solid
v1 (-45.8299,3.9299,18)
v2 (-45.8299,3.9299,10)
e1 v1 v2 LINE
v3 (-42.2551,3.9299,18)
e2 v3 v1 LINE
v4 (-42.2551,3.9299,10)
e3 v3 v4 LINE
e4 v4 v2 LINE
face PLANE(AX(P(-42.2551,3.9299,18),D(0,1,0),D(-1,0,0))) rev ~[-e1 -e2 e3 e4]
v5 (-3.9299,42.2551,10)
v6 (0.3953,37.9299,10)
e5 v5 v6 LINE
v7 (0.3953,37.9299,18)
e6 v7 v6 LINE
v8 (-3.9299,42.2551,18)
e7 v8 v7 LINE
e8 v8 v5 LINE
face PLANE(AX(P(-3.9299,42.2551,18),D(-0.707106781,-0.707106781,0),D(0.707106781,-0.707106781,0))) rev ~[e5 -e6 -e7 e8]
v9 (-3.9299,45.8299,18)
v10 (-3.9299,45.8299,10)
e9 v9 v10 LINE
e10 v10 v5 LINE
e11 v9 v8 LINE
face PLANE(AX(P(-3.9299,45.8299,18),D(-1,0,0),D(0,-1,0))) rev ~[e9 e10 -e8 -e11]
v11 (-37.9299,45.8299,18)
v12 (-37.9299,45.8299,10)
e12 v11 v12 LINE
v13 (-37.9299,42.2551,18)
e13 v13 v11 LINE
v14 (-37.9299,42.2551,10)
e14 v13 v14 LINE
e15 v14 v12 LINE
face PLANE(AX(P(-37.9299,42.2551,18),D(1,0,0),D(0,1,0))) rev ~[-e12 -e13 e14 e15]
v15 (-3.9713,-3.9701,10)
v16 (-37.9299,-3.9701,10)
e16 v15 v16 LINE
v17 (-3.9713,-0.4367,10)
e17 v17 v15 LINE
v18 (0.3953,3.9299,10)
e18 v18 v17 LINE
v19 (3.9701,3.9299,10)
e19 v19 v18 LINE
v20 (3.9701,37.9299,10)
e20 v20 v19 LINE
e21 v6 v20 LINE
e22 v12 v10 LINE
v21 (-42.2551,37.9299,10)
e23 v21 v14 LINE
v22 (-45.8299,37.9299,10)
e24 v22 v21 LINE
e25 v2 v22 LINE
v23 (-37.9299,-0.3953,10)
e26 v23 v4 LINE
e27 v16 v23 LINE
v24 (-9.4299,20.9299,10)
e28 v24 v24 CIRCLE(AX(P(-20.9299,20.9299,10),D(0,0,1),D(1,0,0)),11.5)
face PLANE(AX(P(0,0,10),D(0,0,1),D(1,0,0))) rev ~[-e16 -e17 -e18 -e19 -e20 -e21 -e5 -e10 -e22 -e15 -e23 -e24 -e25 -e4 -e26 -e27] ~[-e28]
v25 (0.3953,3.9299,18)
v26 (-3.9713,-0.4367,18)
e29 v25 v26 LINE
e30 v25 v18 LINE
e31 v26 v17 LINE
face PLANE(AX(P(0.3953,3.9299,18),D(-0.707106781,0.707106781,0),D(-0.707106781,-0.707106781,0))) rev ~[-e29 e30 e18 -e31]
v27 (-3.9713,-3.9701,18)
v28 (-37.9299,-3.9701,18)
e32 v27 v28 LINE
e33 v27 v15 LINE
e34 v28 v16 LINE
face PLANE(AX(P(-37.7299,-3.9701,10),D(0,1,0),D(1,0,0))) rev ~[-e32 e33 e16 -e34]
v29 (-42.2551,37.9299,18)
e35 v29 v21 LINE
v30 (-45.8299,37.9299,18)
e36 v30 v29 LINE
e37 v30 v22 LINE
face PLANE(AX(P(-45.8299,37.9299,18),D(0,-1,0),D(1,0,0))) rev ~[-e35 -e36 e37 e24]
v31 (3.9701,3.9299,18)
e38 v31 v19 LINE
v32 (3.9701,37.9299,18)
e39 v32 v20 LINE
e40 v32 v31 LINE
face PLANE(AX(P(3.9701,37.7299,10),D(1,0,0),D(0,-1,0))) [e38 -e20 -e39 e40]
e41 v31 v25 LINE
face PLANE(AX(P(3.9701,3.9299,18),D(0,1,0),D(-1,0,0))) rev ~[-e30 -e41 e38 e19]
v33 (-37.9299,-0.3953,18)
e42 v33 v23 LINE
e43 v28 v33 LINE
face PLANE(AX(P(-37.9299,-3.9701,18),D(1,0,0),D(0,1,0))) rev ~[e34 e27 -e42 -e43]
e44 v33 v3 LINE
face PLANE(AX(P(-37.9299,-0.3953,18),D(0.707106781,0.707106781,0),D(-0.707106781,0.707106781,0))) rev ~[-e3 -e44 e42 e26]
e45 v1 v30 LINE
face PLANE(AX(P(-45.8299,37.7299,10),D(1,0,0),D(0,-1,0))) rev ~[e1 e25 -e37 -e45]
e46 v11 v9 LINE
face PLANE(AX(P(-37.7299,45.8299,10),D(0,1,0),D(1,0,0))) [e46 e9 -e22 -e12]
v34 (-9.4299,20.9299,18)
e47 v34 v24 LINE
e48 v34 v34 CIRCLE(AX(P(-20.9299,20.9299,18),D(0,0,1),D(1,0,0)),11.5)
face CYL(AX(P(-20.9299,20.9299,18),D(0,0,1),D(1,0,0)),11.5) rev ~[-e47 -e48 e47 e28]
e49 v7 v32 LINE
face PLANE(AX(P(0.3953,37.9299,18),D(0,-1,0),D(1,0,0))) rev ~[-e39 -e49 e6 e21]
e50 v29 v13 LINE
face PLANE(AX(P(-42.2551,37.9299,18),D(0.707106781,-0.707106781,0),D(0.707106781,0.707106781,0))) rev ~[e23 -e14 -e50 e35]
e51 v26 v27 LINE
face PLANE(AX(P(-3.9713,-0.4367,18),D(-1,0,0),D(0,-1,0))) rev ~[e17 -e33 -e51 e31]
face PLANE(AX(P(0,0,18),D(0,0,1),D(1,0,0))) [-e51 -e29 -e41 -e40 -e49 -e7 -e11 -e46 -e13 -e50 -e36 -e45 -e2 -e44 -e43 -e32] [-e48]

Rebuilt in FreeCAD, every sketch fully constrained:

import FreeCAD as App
import Part
import Sketcher
from FreeCAD import Vector


def add_polygon(sketch, points):
    """Adds a closed chain of lines whose ends are joined by coincident constraints."""
    first, n = sketch.GeometryCount, len(points)
    for a, b in zip(points, points[1:] + points[:1]):
        sketch.addGeometry(Part.LineSegment(App.Vector(*a, 0), App.Vector(*b, 0)), False)
    for i in range(n):
        sketch.addConstraint(Sketcher.Constraint("Coincident", first + i, 2, first + (i + 1) % n, 1))

doc = App.newDocument("Part")
params = doc.addObject("Spreadsheet::Sheet", "Params")
for row, (alias, value) in enumerate([
    ("sketch1_width", "33.6 mm"),
    ("pad1_length", "8 mm"),
    ("sketch2_width", "0.2 mm"),
    ("pad2_length", "8 mm"),
    ("sketch3_diameter", "23 mm"),
], start=1):
    params.set(f"A{row}", alias)
    params.set(f"B{row}", "=" + value)
    params.setAlias(f"B{row}", alias)

body = doc.addObject("PartDesign::Body", "Body")

# Sketch on XY plane
sketch1 = body.newObject("Sketcher::SketchObject", "Sketch")
sketch1.AttachmentSupport = (doc.getObject("XY_Plane"), [""])
sketch1.MapMode = "FlatFace"
sketch1.AttachmentOffset = App.Placement(Vector(0, 0, 10), App.Rotation())
add_polygon(sketch1, [(-4.171, -0.354), (0.312, 4.13), (3.97, 4.13), (3.97, 37.73), (0.312, 37.73), (-4.13, 42.172), (-4.13, 45.83), (-37.73, 45.83), (-37.73, 42.172), (-42.172, 37.73), (-45.83, 37.73), (-45.83, 4.13), (-42.172, 4.13), (-37.689, -0.354), (-37.73, -0.354), (-37.73, -3.97), (-4.171, -3.97)])  # lines 0-16
sketch1.addConstraint([
    Sketcher.Constraint("Horizontal", 1),
    Sketcher.Constraint("Vertical", 2),
    Sketcher.Constraint("Horizontal", 3),
    Sketcher.Constraint("Vertical", 5),
    Sketcher.Constraint("Horizontal", 6),
    Sketcher.Constraint("Vertical", 7),
    Sketcher.Constraint("Horizontal", 9),
    Sketcher.Constraint("Vertical", 10),
    Sketcher.Constraint("Horizontal", 11),
    Sketcher.Constraint("Horizontal", 13),
    Sketcher.Constraint("Vertical", 14),
    Sketcher.Constraint("Horizontal", 15),
    Sketcher.Constraint("Vertical", 16),
    Sketcher.Constraint("Perpendicular", 0, 4),
    Sketcher.Constraint("Perpendicular", 4, 8),
    Sketcher.Constraint("Perpendicular", 8, 12),
    Sketcher.Constraint("Horizontal", 4, 2, 7, 2),
    Sketcher.Constraint("Horizontal", 3, 2, 8, 2),
    Sketcher.Constraint("Horizontal", 1, 2, 10, 2),
    Sketcher.Constraint("Horizontal", 13, 2, 16, 2),
    Sketcher.Constraint("Vertical", 0, 2, 3, 2),
    Sketcher.Constraint("Vertical", 8, 2, 11, 2),
    Sketcher.Constraint("Vertical", 7, 2, 13, 2),
    Sketcher.Constraint("Equal", 3, 9),
    Sketcher.Constraint("Equal", 6, 2),
    Sketcher.Constraint("Equal", 11, 5),
    Sketcher.Constraint("Equal", 4, 8),
    Sketcher.Constraint("DistanceX", 6, 2, 6, 1, 33.6),
    Sketcher.Constraint("DistanceX", 4, 2, 2, 2, 8.1),
    Sketcher.Constraint("DistanceY", 14, 2, 11, 2, 8.1),
    Sketcher.Constraint("DistanceY", -1, 1, 0, 2, 4.13),
    Sketcher.Constraint("DistanceX", -1, 1, 1, 2, 3.97),
    Sketcher.Constraint("Distance", 0, 6.341),
    Sketcher.Constraint("DistanceX", 1, 1, 1, 2, 3.6577),
])
sketch1.setExpression("Constraints[44]", "Params.sketch1_width")
pad1 = body.newObject("PartDesign::Pad", "Pad")
pad1.Profile = sketch1
pad1.setExpression("Length", "Params.pad1_length")

# Sketch on XY plane
sketch2 = body.newObject("Sketcher::SketchObject", "Sketch001")
sketch2.AttachmentSupport = (doc.getObject("XY_Plane"), [""])
sketch2.MapMode = "FlatFace"
sketch2.AttachmentOffset = App.Placement(Vector(0, 0, 18), App.Rotation())
add_polygon(sketch2, [(3.97, 3.93), (3.97, 4.13), (0.312, 4.13), (-4.171, -0.354), (-4.171, -3.97), (-3.971, -3.97), (-3.971, -0.437), (0.395, 3.93)])  # lines 0-7
add_polygon(sketch2, [(-3.93, 45.83), (-4.13, 45.83), (-4.13, 42.172), (0.312, 37.73), (3.97, 37.73), (3.97, 37.93), (0.395, 37.93), (-3.93, 42.255)])  # lines 8-15
add_polygon(sketch2, [(-42.172, 37.73), (-37.73, 42.172), (-37.73, 45.83), (-37.93, 45.83), (-37.93, 42.255), (-42.255, 37.93), (-45.83, 37.93), (-45.83, 37.73)])  # lines 16-23
add_polygon(sketch2, [(-42.172, 4.13), (-45.83, 4.13), (-45.83, 3.93), (-42.255, 3.93), (-37.93, -0.395), (-37.93, -3.97), (-37.73, -3.97), (-37.73, -0.354), (-37.688, -0.354)])  # lines 24-32
sketch2.addConstraint([
    Sketcher.Constraint("Vertical", 0),
    Sketcher.Constraint("Horizontal", 1),
    Sketcher.Constraint("Vertical", 3),
    Sketcher.Constraint("Horizontal", 4),
    Sketcher.Constraint("Vertical", 5),
    Sketcher.Constraint("Horizontal", 7),
    Sketcher.Constraint("Horizontal", 8),
    Sketcher.Constraint("Vertical", 9),
    Sketcher.Constraint("Horizontal", 11),
    Sketcher.Constraint("Vertical", 12),
    Sketcher.Constraint("Horizontal", 13),
    Sketcher.Constraint("Vertical", 15),
    Sketcher.Constraint("Vertical", 17),
    Sketcher.Constraint("Horizontal", 18),
    Sketcher.Constraint("Vertical", 19),
    Sketcher.Constraint("Horizontal", 21),
    Sketcher.Constraint("Vertical", 22),
    Sketcher.Constraint("Horizontal", 23),
    Sketcher.Constraint("Horizontal", 24),
    Sketcher.Constraint("Vertical", 25),
    Sketcher.Constraint("Horizontal", 26),
    Sketcher.Constraint("Vertical", 28),
    Sketcher.Constraint("Horizontal", 29),
    Sketcher.Constraint("Vertical", 30),
    Sketcher.Constraint("Horizontal", 31),
    Sketcher.Constraint("Parallel", 2, 6),
    Sketcher.Constraint("Perpendicular", 6, 10),
    Sketcher.Constraint("Parallel", 10, 14),
    Sketcher.Constraint("Perpendicular", 14, 16),
    Sketcher.Constraint("Parallel", 16, 20),
    Sketcher.Constraint("Perpendicular", 20, 27),
    Sketcher.Constraint("Parallel", 27, 32),
    Sketcher.Constraint("Horizontal", 9, 2, 16, 2),
    Sketcher.Constraint("Horizontal", 15, 2, 17, 2),
    Sketcher.Constraint("Horizontal", 14, 2, 19, 2),
    Sketcher.Constraint("Horizontal", 13, 2, 20, 2),
    Sketcher.Constraint("Horizontal", 11, 2, 22, 2),
    Sketcher.Constraint("Horizontal", 1, 2, 24, 2),
    Sketcher.Constraint("Horizontal", 7, 2, 25, 2),
    Sketcher.Constraint("Horizontal", 4, 2, 28, 2),
    Sketcher.Constraint("Horizontal", 2, 2, 30, 2),
    Sketcher.Constraint("Vertical", 1, 2, 10, 2),
    Sketcher.Constraint("Vertical", 7, 2, 11, 2),
    Sketcher.Constraint("Vertical", 6, 2, 13, 2),
    Sketcher.Constraint("Vertical", 22, 2, 24, 2),
    Sketcher.Constraint("Vertical", 20, 2, 26, 2),
    Sketcher.Constraint("Vertical", 19, 2, 27, 2),
    Sketcher.Constraint("Vertical", 17, 2, 29, 2),
    Sketcher.Constraint("Vertical", 23, 2, 32, 2),
    Sketcher.Constraint("Equal", 4, 8),
    Sketcher.Constraint("Equal", 8, 18),
    Sketcher.Constraint("Equal", 13, 21),
    Sketcher.Constraint("Equal", 11, 23),
    Sketcher.Constraint("Equal", 29, 0),
    Sketcher.Constraint("Equal", 24, 9),
    Sketcher.Constraint("Equal", 0, 12),
    Sketcher.Constraint("Equal", 19, 28),
    Sketcher.Constraint("DistanceX", 4, 1, 4, 2, 0.2),
    Sketcher.Constraint("DistanceX", 18, 2, 15, 2, 34.0),
    Sketcher.Constraint("DistanceY", 25, 2, 21, 2, 34.0),
    Sketcher.Constraint("DistanceY", 3, 2, 1, 2, 8.1),
    Sketcher.Constraint("DistanceX", -1, 1, 0, 2, 3.97),
    Sketcher.Constraint("DistanceY", -1, 1, 0, 2, 4.13),
    Sketcher.Constraint("Distance", 2, 6.341),
    Sketcher.Constraint("DistanceX", 1, 2, 1, 1, 3.6577),
    Sketcher.Constraint("DistanceX", 7, 1, 7, 2, 3.5748),
])
sketch2.setExpression("Constraints[90]", "Params.sketch2_width")
pad2 = body.newObject("PartDesign::Pad", "Pad001")
pad2.Profile = sketch2
pad2.setExpression("Length", "Params.pad2_length")
pad2.Reversed = True

# Sketch on XY plane
sketch3 = body.newObject("Sketcher::SketchObject", "Sketch002")
sketch3.AttachmentSupport = (doc.getObject("XY_Plane"), [""])
sketch3.MapMode = "FlatFace"
sketch3.AttachmentOffset = App.Placement(Vector(0, 0, 18), App.Rotation())
sketch3.addGeometry(Part.Circle(Vector(-21, 21, 0), Vector(0, 0, 1), 12), False)
sketch3.addConstraint([
    Sketcher.Constraint("Diameter", 0, 23.0),
    Sketcher.Constraint("DistanceX", 0, 3, -1, 1, 20.93),
    Sketcher.Constraint("DistanceY", -1, 1, 0, 3, 20.93),
])
sketch3.setExpression("Constraints[0]", "Params.sketch3_diameter")
pocket1 = body.newObject("PartDesign::Pocket", "Pocket")
pocket1.Profile = sketch3
pocket1.Type = "ThroughAll"

doc.recompute()
